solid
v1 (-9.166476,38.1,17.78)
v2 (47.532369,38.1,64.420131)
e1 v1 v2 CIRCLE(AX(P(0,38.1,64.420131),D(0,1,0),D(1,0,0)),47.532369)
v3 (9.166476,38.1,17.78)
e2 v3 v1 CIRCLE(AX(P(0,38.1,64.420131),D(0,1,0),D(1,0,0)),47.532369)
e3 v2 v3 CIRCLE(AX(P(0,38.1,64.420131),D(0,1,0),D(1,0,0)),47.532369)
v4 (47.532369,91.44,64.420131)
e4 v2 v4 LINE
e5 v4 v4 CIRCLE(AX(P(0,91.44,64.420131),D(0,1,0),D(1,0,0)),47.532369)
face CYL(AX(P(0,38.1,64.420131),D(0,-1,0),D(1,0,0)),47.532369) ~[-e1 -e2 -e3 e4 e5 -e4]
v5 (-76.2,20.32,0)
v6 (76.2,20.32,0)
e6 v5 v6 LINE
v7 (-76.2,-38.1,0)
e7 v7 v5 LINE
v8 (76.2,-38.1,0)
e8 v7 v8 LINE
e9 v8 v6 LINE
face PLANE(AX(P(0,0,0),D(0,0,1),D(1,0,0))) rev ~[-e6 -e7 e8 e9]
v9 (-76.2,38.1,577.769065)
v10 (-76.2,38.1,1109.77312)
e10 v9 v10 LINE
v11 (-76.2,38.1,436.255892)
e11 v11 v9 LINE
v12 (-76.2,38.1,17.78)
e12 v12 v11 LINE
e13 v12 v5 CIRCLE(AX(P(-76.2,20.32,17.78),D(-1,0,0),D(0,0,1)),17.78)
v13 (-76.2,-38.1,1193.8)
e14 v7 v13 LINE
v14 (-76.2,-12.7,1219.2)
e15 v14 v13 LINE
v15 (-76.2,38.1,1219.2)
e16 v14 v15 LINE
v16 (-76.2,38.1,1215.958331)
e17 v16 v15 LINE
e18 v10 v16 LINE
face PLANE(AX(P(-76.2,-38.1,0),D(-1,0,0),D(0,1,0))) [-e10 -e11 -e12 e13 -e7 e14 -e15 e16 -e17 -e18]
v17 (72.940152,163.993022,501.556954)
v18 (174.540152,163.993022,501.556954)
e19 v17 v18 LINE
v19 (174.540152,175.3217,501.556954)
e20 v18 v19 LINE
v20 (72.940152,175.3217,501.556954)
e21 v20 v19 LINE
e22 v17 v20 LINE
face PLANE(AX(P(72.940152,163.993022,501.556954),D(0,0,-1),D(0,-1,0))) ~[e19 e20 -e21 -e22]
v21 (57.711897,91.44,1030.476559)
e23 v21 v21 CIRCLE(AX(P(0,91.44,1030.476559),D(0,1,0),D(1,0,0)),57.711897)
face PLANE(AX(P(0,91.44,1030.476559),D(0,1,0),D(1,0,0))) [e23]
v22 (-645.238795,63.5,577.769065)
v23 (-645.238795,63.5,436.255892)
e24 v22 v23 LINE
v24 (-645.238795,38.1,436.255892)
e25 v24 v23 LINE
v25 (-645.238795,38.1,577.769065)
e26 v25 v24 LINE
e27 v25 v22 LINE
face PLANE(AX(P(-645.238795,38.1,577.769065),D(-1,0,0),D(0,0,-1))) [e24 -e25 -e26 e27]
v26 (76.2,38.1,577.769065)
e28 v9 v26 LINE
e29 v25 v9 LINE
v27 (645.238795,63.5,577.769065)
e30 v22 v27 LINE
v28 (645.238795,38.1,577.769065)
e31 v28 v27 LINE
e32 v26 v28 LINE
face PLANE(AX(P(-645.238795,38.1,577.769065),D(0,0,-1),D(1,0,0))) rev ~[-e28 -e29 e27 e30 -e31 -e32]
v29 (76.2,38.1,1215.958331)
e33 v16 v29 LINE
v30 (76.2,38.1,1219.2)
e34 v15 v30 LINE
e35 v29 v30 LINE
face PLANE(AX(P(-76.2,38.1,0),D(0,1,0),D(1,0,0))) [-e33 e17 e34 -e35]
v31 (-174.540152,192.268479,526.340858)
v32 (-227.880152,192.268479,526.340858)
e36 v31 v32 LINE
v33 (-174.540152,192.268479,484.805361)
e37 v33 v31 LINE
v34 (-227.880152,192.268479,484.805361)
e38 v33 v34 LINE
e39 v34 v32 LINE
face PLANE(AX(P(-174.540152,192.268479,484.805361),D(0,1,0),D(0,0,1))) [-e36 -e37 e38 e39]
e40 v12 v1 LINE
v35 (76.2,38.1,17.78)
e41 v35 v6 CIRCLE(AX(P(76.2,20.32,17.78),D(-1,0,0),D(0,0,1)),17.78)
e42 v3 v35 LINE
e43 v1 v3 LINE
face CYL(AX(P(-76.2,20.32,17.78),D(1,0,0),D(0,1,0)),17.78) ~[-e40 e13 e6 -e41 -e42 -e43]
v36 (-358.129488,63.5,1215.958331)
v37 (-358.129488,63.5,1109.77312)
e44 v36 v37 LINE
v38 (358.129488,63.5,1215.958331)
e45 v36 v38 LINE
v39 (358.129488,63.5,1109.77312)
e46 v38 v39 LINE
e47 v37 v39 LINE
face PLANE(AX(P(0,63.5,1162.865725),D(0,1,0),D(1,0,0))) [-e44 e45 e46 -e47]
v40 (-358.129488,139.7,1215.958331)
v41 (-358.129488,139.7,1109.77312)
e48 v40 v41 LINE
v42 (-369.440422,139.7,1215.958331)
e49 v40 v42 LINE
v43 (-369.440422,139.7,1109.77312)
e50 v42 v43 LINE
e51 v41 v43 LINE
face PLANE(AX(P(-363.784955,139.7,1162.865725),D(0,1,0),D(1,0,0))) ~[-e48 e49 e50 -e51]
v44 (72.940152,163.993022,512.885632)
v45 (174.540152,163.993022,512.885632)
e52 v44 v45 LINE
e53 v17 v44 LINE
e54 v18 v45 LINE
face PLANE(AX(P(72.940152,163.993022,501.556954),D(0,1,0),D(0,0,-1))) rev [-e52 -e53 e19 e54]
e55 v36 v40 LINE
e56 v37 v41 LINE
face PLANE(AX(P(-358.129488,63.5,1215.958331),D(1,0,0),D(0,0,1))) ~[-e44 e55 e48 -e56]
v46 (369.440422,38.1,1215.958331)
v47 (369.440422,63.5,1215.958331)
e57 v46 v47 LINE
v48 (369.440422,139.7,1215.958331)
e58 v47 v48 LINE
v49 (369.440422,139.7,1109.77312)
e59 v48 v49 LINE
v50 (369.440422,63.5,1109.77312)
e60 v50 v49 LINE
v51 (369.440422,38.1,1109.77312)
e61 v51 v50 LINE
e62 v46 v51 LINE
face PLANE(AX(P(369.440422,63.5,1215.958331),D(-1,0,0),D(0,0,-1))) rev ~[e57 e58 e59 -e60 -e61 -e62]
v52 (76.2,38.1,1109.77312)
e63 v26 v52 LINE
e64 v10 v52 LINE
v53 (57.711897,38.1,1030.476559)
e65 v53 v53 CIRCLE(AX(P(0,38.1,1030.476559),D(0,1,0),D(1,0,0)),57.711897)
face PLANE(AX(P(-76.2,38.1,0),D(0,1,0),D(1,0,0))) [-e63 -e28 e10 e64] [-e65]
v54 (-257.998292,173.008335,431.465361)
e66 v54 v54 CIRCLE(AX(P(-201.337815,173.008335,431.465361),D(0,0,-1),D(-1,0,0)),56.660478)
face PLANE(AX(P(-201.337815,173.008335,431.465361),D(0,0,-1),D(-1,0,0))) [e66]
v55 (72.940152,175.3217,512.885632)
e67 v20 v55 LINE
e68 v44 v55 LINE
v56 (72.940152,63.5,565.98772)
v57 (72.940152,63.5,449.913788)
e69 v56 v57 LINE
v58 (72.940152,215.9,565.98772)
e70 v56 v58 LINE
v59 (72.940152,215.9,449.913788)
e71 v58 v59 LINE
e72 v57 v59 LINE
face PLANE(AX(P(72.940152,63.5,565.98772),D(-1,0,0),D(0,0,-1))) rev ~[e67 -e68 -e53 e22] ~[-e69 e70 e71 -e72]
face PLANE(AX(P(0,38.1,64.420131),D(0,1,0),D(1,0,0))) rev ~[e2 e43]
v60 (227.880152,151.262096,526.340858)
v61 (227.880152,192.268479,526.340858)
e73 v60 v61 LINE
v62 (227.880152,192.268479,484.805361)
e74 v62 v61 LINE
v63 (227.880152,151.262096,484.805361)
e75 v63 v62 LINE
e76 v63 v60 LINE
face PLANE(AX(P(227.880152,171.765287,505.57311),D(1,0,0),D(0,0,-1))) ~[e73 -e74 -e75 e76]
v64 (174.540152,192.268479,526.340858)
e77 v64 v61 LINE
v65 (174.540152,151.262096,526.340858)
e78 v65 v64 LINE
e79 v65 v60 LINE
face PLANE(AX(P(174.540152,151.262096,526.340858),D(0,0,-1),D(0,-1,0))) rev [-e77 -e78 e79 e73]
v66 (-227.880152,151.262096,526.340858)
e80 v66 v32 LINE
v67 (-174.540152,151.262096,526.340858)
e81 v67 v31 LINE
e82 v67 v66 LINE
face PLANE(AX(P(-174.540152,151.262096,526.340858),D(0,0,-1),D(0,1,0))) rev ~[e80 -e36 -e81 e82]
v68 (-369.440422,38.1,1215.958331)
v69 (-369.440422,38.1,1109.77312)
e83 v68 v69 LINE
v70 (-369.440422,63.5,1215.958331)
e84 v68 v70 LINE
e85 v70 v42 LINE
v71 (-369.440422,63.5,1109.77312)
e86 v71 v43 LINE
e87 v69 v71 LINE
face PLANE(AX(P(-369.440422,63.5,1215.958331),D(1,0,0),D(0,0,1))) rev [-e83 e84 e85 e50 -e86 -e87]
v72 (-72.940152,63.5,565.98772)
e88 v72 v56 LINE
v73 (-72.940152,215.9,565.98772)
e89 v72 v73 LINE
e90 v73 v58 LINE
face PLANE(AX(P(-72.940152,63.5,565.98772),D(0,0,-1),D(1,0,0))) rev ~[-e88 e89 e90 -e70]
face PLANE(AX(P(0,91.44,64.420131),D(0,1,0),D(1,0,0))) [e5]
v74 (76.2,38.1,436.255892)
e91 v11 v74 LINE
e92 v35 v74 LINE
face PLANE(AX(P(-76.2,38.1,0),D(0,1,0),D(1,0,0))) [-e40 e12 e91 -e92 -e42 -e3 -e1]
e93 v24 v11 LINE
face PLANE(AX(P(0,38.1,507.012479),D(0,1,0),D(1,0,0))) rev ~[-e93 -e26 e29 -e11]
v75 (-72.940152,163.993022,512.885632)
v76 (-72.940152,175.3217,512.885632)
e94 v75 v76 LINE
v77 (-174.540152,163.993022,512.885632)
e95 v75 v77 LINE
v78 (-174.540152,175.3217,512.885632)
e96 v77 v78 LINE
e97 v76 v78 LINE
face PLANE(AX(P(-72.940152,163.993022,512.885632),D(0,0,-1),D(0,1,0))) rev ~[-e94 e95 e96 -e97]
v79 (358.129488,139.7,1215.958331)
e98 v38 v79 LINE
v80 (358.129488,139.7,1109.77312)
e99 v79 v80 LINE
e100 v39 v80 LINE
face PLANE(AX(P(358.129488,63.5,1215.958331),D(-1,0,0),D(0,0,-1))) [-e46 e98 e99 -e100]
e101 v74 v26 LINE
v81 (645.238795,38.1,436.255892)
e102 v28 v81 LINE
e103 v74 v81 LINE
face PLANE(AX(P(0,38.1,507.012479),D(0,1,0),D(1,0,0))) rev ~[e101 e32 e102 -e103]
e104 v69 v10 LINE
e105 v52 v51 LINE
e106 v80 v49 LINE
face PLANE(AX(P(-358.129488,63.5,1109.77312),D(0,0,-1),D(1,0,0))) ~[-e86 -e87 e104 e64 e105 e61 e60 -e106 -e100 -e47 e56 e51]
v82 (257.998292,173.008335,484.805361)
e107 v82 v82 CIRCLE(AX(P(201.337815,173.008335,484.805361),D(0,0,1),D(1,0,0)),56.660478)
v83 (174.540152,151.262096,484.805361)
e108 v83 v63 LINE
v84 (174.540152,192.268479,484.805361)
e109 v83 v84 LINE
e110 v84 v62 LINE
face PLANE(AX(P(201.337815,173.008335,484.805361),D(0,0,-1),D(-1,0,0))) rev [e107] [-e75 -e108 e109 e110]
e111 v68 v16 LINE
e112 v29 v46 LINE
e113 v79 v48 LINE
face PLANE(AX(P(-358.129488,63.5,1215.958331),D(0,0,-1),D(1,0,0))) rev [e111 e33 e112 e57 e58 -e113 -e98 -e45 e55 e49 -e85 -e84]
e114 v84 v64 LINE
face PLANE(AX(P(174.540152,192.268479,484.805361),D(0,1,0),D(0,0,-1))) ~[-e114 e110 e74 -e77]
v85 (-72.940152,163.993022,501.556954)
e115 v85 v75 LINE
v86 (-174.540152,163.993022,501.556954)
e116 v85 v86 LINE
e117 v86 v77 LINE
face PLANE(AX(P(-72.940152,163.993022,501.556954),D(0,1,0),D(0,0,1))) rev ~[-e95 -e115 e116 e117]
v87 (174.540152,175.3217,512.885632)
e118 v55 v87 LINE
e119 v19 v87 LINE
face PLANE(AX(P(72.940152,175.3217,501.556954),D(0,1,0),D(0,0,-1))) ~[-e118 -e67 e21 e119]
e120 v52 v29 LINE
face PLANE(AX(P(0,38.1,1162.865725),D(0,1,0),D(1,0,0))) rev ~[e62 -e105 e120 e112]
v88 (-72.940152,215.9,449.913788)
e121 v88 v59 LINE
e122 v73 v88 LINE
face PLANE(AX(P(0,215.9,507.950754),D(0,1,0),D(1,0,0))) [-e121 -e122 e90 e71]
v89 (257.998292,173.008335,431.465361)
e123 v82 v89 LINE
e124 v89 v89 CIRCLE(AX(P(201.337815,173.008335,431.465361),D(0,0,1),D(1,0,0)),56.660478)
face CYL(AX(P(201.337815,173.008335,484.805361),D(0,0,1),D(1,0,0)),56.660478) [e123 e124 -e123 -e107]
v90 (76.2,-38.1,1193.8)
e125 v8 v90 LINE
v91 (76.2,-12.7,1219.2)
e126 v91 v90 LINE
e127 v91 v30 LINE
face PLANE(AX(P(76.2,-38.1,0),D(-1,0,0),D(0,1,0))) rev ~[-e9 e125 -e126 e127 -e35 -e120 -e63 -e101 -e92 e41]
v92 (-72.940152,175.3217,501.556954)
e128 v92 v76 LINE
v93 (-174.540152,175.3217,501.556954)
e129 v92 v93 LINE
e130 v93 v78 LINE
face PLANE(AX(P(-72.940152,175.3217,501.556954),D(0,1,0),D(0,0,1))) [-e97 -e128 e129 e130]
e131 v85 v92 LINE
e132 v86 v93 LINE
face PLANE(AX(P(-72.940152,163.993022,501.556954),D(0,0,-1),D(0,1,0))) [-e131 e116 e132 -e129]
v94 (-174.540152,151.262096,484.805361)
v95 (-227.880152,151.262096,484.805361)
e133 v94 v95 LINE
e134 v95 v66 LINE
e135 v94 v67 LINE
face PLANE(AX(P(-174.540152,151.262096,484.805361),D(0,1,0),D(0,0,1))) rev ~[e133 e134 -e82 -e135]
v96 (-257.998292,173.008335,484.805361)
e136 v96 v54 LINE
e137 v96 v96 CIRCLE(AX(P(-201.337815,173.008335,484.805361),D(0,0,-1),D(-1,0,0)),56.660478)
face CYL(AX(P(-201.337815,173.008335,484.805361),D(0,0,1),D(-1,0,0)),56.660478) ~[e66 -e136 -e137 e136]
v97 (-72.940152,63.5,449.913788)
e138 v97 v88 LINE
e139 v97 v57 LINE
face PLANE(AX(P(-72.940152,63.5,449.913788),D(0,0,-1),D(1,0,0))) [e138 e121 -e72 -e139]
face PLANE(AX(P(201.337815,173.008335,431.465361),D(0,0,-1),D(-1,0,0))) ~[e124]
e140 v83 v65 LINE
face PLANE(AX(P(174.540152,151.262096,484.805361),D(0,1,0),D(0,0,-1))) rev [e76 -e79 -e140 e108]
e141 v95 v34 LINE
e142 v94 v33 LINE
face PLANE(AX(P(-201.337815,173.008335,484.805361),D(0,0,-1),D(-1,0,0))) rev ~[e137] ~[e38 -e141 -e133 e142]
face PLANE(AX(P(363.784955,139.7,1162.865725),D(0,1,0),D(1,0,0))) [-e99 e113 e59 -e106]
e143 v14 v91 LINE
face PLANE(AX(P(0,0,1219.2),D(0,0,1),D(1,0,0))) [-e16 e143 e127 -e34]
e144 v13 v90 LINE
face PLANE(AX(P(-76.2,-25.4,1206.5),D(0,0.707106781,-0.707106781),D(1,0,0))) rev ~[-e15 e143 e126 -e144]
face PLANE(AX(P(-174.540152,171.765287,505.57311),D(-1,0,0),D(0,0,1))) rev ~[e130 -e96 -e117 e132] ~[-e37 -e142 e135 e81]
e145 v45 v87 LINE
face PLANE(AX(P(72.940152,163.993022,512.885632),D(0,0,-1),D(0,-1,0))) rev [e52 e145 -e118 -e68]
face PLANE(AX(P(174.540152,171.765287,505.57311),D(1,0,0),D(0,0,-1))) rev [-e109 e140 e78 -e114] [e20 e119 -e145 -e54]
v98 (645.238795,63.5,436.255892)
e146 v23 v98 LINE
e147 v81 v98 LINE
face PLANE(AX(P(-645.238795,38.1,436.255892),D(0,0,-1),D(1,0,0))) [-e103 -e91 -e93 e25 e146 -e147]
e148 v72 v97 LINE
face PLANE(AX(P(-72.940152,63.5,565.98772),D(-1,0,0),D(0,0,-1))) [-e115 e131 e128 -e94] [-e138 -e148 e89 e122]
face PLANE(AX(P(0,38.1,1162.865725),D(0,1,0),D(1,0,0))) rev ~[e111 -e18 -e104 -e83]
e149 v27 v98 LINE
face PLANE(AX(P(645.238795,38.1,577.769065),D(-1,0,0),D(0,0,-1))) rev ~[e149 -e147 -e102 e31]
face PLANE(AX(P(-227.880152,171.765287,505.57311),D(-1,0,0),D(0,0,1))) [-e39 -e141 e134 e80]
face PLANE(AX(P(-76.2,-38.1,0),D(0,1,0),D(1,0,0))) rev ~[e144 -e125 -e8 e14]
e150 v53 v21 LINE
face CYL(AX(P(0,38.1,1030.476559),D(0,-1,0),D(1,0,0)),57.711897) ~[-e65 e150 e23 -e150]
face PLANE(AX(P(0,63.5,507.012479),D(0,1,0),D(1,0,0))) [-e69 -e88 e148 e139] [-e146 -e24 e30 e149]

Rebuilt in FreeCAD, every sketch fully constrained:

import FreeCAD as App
import Part
import Sketcher

V = App.Vector
Q = App.Units.Quantity


def edges_at(feature, points):
    """Names of the edges that pass closest to the given points."""
    edges = feature.Shape.Edges
    near = lambda p: min(range(len(edges)), key=lambda i: edges[i].distToShape(Part.Vertex(*p))[0])
    return sorted({f"Edge{near(p) + 1}" for p in points})


def add_polygon(sketch, points):
    """Adds a closed chain of lines whose ends are joined by coincident constraints."""
    first, n = sketch.GeometryCount, len(points)
    for a, b in zip(points, points[1:] + points[:1]):
        sketch.addGeometry(Part.LineSegment(App.Vector(*a, 0), App.Vector(*b, 0)), False)
    for i in range(n):
        sketch.addConstraint(Sketcher.Constraint("Coincident", first + i, 2, first + (i + 1) % n, 1))

doc = App.newDocument("Part")
body = doc.addObject("PartDesign::Body", "Body")

sketch1 = body.newObject("Sketcher::SketchObject", "Sketch")
sketch1.AttachmentSupport = (doc.getObject("XY_Plane"), [""])
sketch1.MapMode = "FlatFace"
add_polygon(sketch1, [(-76, 38), (-76, -38), (76, -38), (76, 38)])
sketch1.addConstraint([
    Sketcher.Constraint("Vertical", 0),
    Sketcher.Constraint("Horizontal", 1),
    Sketcher.Constraint("Vertical", 2),
    Sketcher.Constraint("Horizontal", 3),
    Sketcher.Constraint("Symmetric", 0, 2, 2, 2, -1, 1),
    Sketcher.Constraint("DistanceX", 1, 1, 1, 2, Q("6 in")),
    Sketcher.Constraint("DistanceY", 0, 2, 0, 1, Q("3 in")),
])
pad1 = body.newObject("PartDesign::Pad", "Pad")
pad1.Profile = sketch1
pad1.Length = Q("48 in")
doc.recompute()

fillet = body.newObject("PartDesign::Fillet", "Fillet")
fillet.Base = (pad1, edges_at(pad1, [(0, 38.1, 0)]))
fillet.Radius = Q("0.7 in")
doc.recompute()

chamfer = body.newObject("PartDesign::Chamfer", "Chamfer")
chamfer.Base = (fillet, edges_at(fillet, [(0, -38.1, 1219.2)]))
chamfer.Size = Q("1 in")

sketch2 = body.newObject("Sketcher::SketchObject", "Sketch001")
sketch2.AttachmentSupport = (doc.getObject("XZ_Plane"), [""])
sketch2.MapMode = "FlatFace"
sketch2.AttachmentOffset = App.Placement(V(0, 0, -1.5 * 25.4), App.Rotation())
add_polygon(sketch2, [(-645, 436), (-645, 578), (645, 578), (645, 436)])
add_polygon(sketch2, [(-369, 1110), (-369, 1216), (369, 1216), (369, 1110)])
sketch2.addConstraint([
    Sketcher.Constraint("Vertical", 0),
    Sketcher.Constraint("Horizontal", 1),
    Sketcher.Constraint("Vertical", 2),
    Sketcher.Constraint("Horizontal", 3),
    Sketcher.Constraint("Vertical", 4),
    Sketcher.Constraint("Horizontal", 5),
    Sketcher.Constraint("Vertical", 6),
    Sketcher.Constraint("Horizontal", 7),
    Sketcher.Constraint("DistanceX", 1, 1, 1, 2, 1290.47759),
    Sketcher.Constraint("DistanceY", 4, 1, 4, 2, 106.185211),
    Sketcher.Constraint("DistanceX", 5, 1, 5, 2, 738.880844),
    Sketcher.Constraint("DistanceY", 0, 1, 0, 2, 141.513173),
    Sketcher.Constraint("DistanceX", 4, 2, -1, 1, 369.440422),
    Sketcher.Constraint("DistanceY", -1, 1, 4, 2, 1215.958331),
    Sketcher.Constraint("DistanceY", 3, 2, 4, 2, 779.702439),
    Sketcher.Constraint("DistanceX", 0, 2, -1, 1, 645.238795),
])
pad2 = body.newObject("PartDesign::Pad", "Pad001")
pad2.Profile = sketch2
pad2.Length = Q("1 in")
pad2.Reversed = True

sketch3 = body.newObject("Sketcher::SketchObject", "Sketch002")
sketch3.AttachmentSupport = (doc.getObject("XZ_Plane"), [""])
sketch3.MapMode = "FlatFace"
sketch3.AttachmentOffset = App.Placement(V(0, 0, -2.5 * 25.4), App.Rotation())
add_polygon(sketch3, [(-73, 450), (-73, 566), (73, 566), (73, 450)])
sketch3.addConstraint([
    Sketcher.Constraint("Vertical", 0),
    Sketcher.Constraint("Horizontal", 1),
    Sketcher.Constraint("Vertical", 2),
    Sketcher.Constraint("Horizontal", 3),
    Sketcher.Constraint("DistanceX", 1, 1, 1, 2, 145.880304),
    Sketcher.Constraint("DistanceY", 0, 1, 0, 2, 116.073932),
    Sketcher.Constraint("DistanceX", 0, 2, -1, 1, 72.940152),
    Sketcher.Constraint("DistanceY", -1, 1, 0, 2, 565.98772),
])
pad3 = body.newObject("PartDesign::Pad", "Pad002")
pad3.Profile = sketch3
pad3.Length = Q("6 in")
pad3.Reversed = True

sketch4 = body.newObject("Sketcher::SketchObject", "Sketch003")
sketch4.AttachmentSupport = (doc.getObject("YZ_Plane"), [""])
sketch4.MapMode = "FlatFace"
sketch4.AttachmentOffset = App.Placement(V(0, 0, -72.940152), App.Rotation())
add_polygon(sketch4, [(175, 502), (164, 502), (164, 513), (175, 513)])
sketch4.addConstraint([
    Sketcher.Constraint("Horizontal", 0),
    Sketcher.Constraint("Vertical", 1),
    Sketcher.Constraint("Horizontal", 2),
    Sketcher.Constraint("Vertical", 3),
    Sketcher.Constraint("Equal", 2, 1),
    Sketcher.Constraint("DistanceX", 0, 2, 0, 1, 11.328678),
    Sketcher.Constraint("DistanceX", -1, 1, 2, 2, 175.3217),
    Sketcher.Constraint("DistanceY", -1, 1, 0, 2, 501.556954),
])
pad4 = body.newObject("PartDesign::Pad", "Pad003")
pad4.Profile = sketch4
pad4.Length = Q("4 in")
pad4.Reversed = True

sketch5 = body.newObject("Sketcher::SketchObject", "Sketch004")
sketch5.AttachmentSupport = (doc.getObject("YZ_Plane"), [""])
sketch5.MapMode = "FlatFace"
sketch5.AttachmentOffset = App.Placement(V(0, 0, -174.540152), App.Rotation())
add_polygon(sketch5, [(192, 485), (151, 485), (151, 526), (192, 526)])
sketch5.addConstraint([
    Sketcher.Constraint("Horizontal", 0),
    Sketcher.Constraint("Vertical", 1),
    Sketcher.Constraint("Horizontal", 2),
    Sketcher.Constraint("Vertical", 3),
    Sketcher.Constraint("DistanceX", 0, 2, 0, 1, 41.006382),
    Sketcher.Constraint("DistanceY", 1, 1, 1, 2, 41.535497),
    Sketcher.Constraint("DistanceY", -1, 1, 0, 2, 484.805361),
    Sketcher.Constraint("DistanceX", -1, 1, 2, 2, 192.268479),
])
pad5 = body.newObject("PartDesign::Pad", "Pad004")
pad5.Profile = sketch5
pad5.Length = Q("2.1 in")
pad5.Reversed = True

sketch6 = body.newObject("Sketcher::SketchObject", "Sketch005")
sketch6.AttachmentSupport = (doc.getObject("XY_Plane"), [""])
sketch6.MapMode = "FlatFace"
sketch6.AttachmentOffset = App.Placement(V(0, 0, 484.805361), App.Rotation())
sketch6.addGeometry(Part.Circle(V(-201, 173, 0), V(0, 0, 1), 57), False)
sketch6.addConstraint([
    Sketcher.Constraint("Diameter", 0, 113.320955),
    Sketcher.Constraint("DistanceX", 0, 3, -1, 1, 201.337815),
    Sketcher.Constraint("DistanceY", -1, 1, 0, 3, 173.008335),
])
pad6 = body.newObject("PartDesign::Pad", "Pad005")
pad6.Profile = sketch6
pad6.Length = Q("2.1 in")
pad6.Reversed = True
doc.recompute()

mirrored = body.newObject("PartDesign::Mirrored", "Mirrored")
mirrored.Originals = [pad4, pad5, pad6]
mirrored.MirrorPlane = (doc.getObject("YZ_Plane"), [""])
body.Tip = mirrored

sketch7 = body.newObject("Sketcher::SketchObject", "Sketch006")
sketch7.AttachmentSupport = (doc.getObject("XZ_Plane"), [""])
sketch7.MapMode = "FlatFace"
sketch7.AttachmentOffset = App.Placement(V(0, 0, -1.5 * 25.4), App.Rotation())
sketch7.addGeometry([
    Part.Circle(V(0, 64, 0), V(0, 0, 1), 48),
    Part.Circle(V(0, 1030, 0), V(0, 0, 1), 58),
], False)
sketch7.addConstraint([
    Sketcher.Constraint("PointOnObject", 0, 3, -2),
    Sketcher.Constraint("PointOnObject", 1, 3, -2),
    Sketcher.Constraint("Diameter", 0, 95.064738),
    Sketcher.Constraint("Diameter", 1, 115.423794),
    Sketcher.Constraint("DistanceY", -1, 1, 0, 3, 64.420131),
    Sketcher.Constraint("DistanceY", -1, 1, 1, 3, 1030.476559),
])
pad7 = body.newObject("PartDesign::Pad", "Pad006")
pad7.Profile = sketch7
pad7.Length = Q("2.1 in")
pad7.Reversed = True

sketch8 = body.newObject("Sketcher::SketchObject", "Sketch007")
sketch8.AttachmentSupport = (doc.getObject("XZ_Plane"), [""])
sketch8.MapMode = "FlatFace"
sketch8.AttachmentOffset = App.Placement(V(0, 0, -2.5 * 25.4), App.Rotation())
add_polygon(sketch8, [(358, 1110), (358, 1216), (369, 1216), (369, 1110)])
sketch8.addConstraint([
    Sketcher.Constraint("Vertical", 0),
    Sketcher.Constraint("Horizontal", 1),
    Sketcher.Constraint("Vertical", 2),
    Sketcher.Constraint("Horizontal", 3),
    Sketcher.Constraint("DistanceY", 0, 1, 0, 2, 106.185211),
    Sketcher.Constraint("DistanceX", 1, 1, 1, 2, 11.310933),
    Sketcher.Constraint("DistanceX", -1, 1, 0, 2, 358.129488),
    Sketcher.Constraint("DistanceY", -1, 1, 0, 2, 1215.958331),
])
pad8 = body.newObject("PartDesign::Pad", "Pad007")
pad8.Profile = sketch8
pad8.Length = Q("3 in")
pad8.Reversed = True
doc.recompute()

mirrored2 = body.newObject("PartDesign::Mirrored", "Mirrored001")
mirrored2.Originals = [pad8]
mirrored2.MirrorPlane = (doc.getObject("YZ_Plane"), [""])
body.Tip = mirrored2

doc.recompute()
